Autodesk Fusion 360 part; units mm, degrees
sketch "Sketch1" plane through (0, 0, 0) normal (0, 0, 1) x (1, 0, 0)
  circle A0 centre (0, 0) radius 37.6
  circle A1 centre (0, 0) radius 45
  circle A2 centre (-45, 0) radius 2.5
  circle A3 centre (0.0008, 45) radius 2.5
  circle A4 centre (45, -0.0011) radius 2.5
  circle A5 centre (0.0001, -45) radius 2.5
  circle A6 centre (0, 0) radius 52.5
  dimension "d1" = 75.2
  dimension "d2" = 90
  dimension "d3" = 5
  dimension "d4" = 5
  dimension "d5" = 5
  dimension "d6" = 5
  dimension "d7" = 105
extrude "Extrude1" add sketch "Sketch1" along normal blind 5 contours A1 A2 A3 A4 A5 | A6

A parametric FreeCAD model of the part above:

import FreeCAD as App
import Part
import Sketcher

V = App.Vector

doc = App.newDocument("Part")
params = doc.addObject("Spreadsheet::Sheet", "Params")
for row, (alias, value) in enumerate([
    ("sketch1_diameter", "105 mm"),
    ("sketch1_diameter2", "5 mm"),
    ("sketch1_diameter3", "75.2 mm"),
    ("pad1_length", "5 mm"),
], start=1):
    params.set(f"A{row}", alias)
    params.set(f"B{row}", "=" + value)
    params.setAlias(f"B{row}", alias)

body = doc.addObject("PartDesign::Body", "Body")

# Sketch on XY plane
sketch1 = body.newObject("Sketcher::SketchObject", "Sketch")
sketch1.AttachmentSupport = (doc.getObject("XY_Plane"), [""])
sketch1.MapMode = "FlatFace"
sketch1.addGeometry(Part.Circle(V(0, 0, 0), V(0, 0, 1), 52.5), False)
sketch1.addGeometry(Part.Circle(V(45, -0.0011, 0), V(0, 0, 1), 2.5), False)
sketch1.addGeometry(Part.Circle(V(0.0001, -45, 0), V(0, 0, 1), 2.5), False)
sketch1.addGeometry(Part.Circle(V(-45, 0, 0), V(0, 0, 1), 2.5), False)
sketch1.addGeometry(Part.Circle(V(0.0008, 45, 0), V(0, 0, 1), 2.5), False)
sketch1.addGeometry(Part.Circle(V(0, 0, 0), V(0, 0, 1), 37.6), False)
sketch1.addConstraint(Sketcher.Constraint("Coincident", 0, 3, -1, 1))
sketch1.addConstraint(Sketcher.Constraint("Coincident", 5, 3, -1, 1))
sketch1.addConstraint(Sketcher.Constraint("Equal", 1, 2))
sketch1.addConstraint(Sketcher.Constraint("Equal", 2, 3))
sketch1.addConstraint(Sketcher.Constraint("Equal", 3, 4))
sketch1.addConstraint(Sketcher.Constraint("PointOnObject", 2, 3, -2))
sketch1.addConstraint(Sketcher.Constraint("PointOnObject", 3, 3, -1))
sketch1.addConstraint(Sketcher.Constraint("Diameter", 0, 105.0))
sketch1.addConstraint(Sketcher.Constraint("Diameter", 1, 5.0))
sketch1.addConstraint(Sketcher.Constraint("Diameter", 5, 75.2))
sketch1.addConstraint(Sketcher.Constraint("DistanceX", 3, 3, 1, 3, 90.0))
sketch1.addConstraint(Sketcher.Constraint("DistanceY", 2, 3, 4, 3, 90.0))
sketch1.addConstraint(Sketcher.Constraint("DistanceX", -1, 1, 1, 3, 45.0))
sketch1.addConstraint(Sketcher.Constraint("DistanceY", 2, 3, -1, 1, 45.0))
sketch1.addConstraint(Sketcher.Constraint("DistanceY", 1, 3, -1, 1, 0.001))
sketch1.addConstraint(Sketcher.Constraint("DistanceX", -1, 1, 4, 3, 0.0008))
sketch1.setExpression("Constraints[7]", "Params.sketch1_diameter")
sketch1.setExpression("Constraints[8]", "Params.sketch1_diameter2")
sketch1.setExpression("Constraints[9]", "Params.sketch1_diameter3")
pad1 = body.newObject("PartDesign::Pad", "Pad")
pad1.Profile = sketch1
pad1.setExpression("Length", "Params.pad1_length")

doc.recompute()
